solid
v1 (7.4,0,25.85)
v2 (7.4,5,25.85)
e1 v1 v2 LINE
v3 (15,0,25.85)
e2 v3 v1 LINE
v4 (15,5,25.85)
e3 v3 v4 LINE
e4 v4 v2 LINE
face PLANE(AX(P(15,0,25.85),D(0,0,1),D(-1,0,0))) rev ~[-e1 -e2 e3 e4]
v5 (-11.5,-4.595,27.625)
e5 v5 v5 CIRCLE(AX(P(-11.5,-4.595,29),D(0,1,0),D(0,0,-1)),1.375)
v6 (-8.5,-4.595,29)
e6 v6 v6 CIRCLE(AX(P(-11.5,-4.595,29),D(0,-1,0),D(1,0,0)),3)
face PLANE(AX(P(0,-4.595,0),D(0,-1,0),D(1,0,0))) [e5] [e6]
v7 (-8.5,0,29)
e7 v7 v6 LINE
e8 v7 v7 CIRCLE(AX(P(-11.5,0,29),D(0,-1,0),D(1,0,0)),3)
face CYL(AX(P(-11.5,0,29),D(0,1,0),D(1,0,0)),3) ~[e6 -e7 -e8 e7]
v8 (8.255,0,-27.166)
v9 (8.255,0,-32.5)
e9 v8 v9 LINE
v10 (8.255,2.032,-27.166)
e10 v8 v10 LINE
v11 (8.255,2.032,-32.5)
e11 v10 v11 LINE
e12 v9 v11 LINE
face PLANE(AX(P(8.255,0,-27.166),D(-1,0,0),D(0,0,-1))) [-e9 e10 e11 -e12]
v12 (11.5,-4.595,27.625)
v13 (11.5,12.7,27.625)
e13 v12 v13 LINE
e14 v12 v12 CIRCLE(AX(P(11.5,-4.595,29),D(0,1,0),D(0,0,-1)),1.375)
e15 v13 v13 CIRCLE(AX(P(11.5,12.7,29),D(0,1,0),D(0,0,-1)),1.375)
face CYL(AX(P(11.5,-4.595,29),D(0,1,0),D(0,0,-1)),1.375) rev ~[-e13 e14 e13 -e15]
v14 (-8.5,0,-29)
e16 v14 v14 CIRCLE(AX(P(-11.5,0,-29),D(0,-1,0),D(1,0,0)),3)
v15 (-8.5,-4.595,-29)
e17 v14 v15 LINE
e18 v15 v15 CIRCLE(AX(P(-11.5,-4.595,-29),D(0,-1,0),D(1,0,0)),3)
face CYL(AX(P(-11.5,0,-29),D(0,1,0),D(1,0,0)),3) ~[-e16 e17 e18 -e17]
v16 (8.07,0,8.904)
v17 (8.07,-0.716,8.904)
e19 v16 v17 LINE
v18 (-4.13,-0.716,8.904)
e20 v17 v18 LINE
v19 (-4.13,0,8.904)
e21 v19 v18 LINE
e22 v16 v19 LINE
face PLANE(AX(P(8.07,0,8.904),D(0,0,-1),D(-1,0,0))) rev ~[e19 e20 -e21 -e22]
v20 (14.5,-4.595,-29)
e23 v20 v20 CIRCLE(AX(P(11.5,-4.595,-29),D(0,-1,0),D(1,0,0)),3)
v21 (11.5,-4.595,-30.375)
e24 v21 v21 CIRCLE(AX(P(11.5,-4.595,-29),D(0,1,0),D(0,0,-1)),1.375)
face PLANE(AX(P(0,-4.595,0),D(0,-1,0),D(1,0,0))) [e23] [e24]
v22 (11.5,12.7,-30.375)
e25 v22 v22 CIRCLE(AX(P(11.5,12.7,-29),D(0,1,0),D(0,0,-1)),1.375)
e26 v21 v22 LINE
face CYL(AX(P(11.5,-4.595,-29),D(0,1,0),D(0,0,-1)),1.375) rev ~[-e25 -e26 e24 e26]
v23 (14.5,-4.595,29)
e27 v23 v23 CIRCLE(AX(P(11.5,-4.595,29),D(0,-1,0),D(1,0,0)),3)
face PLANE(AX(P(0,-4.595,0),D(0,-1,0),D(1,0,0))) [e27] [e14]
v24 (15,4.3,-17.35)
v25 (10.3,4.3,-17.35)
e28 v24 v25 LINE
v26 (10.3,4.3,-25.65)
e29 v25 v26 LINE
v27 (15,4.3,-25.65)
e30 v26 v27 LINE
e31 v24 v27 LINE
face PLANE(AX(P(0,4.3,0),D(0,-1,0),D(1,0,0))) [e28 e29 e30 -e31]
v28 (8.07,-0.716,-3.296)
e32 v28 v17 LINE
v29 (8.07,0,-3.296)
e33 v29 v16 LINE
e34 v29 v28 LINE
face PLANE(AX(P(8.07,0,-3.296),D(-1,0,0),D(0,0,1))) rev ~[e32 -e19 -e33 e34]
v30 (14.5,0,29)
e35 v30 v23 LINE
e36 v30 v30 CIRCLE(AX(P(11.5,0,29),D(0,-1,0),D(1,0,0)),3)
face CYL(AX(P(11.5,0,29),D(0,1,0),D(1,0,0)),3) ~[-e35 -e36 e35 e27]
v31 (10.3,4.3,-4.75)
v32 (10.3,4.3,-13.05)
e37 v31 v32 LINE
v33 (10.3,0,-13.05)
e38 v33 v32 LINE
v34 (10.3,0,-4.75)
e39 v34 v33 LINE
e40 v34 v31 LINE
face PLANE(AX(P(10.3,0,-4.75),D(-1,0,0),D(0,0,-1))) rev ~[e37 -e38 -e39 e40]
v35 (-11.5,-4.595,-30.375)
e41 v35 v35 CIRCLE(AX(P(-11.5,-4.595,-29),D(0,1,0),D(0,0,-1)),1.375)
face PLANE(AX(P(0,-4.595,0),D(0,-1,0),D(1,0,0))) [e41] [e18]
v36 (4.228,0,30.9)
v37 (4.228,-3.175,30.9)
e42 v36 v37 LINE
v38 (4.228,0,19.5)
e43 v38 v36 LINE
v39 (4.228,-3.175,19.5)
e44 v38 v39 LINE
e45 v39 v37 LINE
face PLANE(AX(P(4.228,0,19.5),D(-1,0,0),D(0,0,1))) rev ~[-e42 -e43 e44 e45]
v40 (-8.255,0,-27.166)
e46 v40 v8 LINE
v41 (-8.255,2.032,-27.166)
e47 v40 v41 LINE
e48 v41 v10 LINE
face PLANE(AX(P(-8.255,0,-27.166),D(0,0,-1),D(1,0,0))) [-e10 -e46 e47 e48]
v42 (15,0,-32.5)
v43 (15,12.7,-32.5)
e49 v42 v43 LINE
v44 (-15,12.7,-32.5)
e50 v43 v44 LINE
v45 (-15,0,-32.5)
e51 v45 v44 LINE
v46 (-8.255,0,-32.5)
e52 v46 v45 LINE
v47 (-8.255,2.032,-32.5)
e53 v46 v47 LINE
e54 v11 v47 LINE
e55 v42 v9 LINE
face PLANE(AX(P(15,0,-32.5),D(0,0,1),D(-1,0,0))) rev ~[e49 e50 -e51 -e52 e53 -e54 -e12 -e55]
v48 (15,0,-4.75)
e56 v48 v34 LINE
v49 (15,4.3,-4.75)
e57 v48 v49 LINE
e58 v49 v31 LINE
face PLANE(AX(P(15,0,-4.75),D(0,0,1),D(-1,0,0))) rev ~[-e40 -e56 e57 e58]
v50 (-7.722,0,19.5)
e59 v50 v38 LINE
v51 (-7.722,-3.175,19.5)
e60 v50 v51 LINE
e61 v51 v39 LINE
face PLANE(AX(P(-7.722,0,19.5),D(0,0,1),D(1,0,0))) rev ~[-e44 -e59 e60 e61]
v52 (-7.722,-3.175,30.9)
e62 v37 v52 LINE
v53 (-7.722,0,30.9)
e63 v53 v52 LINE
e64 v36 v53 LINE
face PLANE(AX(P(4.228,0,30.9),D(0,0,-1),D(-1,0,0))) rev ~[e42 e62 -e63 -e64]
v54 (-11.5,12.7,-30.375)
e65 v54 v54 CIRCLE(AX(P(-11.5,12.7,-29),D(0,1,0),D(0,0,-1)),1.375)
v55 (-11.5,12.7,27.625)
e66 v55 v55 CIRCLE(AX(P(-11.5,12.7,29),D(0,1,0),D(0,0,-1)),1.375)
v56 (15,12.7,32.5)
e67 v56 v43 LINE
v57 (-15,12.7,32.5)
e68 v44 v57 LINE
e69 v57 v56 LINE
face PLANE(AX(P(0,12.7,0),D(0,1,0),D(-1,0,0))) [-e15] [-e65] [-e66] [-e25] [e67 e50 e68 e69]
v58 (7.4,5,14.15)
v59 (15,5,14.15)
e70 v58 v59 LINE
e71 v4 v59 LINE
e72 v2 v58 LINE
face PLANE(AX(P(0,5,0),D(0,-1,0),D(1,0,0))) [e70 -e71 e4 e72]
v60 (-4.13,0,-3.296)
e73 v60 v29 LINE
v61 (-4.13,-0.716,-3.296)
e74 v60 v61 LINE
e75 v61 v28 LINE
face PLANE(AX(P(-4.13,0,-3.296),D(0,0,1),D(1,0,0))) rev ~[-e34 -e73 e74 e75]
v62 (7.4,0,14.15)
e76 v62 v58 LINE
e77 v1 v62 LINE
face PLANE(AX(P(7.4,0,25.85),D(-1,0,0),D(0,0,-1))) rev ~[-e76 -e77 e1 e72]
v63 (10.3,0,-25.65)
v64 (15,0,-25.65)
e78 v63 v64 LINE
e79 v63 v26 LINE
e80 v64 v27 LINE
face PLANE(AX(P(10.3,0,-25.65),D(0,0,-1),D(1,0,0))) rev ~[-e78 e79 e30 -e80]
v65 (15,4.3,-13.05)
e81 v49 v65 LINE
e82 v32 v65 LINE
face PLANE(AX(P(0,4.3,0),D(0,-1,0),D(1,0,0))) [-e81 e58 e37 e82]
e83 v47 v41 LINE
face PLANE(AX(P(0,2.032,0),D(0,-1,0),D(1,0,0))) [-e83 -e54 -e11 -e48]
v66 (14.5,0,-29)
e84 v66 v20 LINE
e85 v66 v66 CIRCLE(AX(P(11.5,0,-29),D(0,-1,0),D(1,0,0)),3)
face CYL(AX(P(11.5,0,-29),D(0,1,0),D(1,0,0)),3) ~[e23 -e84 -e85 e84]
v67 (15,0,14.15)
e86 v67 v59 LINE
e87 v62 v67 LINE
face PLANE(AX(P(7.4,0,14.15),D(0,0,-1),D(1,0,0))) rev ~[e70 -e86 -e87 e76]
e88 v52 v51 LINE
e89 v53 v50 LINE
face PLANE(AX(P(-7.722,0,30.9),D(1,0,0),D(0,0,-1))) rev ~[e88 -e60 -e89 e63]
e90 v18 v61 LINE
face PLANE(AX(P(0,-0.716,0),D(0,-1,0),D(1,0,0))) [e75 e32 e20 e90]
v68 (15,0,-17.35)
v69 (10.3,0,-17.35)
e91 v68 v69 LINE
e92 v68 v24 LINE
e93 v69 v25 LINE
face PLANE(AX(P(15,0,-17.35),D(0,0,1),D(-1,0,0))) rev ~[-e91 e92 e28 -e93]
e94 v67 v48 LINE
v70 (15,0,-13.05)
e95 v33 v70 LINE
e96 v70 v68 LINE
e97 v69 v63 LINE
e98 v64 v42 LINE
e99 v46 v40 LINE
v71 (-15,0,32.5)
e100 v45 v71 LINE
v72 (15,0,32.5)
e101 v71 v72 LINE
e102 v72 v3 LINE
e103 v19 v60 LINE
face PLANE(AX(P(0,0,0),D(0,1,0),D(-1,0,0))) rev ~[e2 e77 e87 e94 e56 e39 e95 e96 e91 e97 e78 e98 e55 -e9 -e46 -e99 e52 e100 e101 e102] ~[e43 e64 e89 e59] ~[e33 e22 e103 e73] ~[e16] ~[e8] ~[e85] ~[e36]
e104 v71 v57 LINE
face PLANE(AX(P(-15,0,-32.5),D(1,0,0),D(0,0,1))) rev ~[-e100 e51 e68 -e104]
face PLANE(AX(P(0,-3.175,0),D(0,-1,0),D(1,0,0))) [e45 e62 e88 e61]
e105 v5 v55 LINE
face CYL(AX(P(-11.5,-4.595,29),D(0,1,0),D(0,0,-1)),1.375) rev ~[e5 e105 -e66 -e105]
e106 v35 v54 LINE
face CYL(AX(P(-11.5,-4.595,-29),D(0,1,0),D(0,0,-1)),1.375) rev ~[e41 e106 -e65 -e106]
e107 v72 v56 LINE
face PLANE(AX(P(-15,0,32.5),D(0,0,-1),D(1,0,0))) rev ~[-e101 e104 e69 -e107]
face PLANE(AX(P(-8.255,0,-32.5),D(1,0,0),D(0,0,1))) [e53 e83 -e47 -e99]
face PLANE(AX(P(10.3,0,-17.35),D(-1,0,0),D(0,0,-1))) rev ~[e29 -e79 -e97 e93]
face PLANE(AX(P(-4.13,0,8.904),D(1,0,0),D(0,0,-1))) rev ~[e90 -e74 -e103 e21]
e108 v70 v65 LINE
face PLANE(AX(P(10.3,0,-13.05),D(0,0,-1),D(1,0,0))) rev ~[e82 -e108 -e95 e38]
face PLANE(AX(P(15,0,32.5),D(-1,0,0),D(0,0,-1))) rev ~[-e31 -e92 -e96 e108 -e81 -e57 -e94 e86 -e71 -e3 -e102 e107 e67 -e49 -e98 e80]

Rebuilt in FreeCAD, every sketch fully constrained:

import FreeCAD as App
import Part
import Sketcher
from FreeCAD import Vector
Q = App.Units.Quantity

doc = App.newDocument("Part")
body = doc.addObject("PartDesign::Body", "Body")

sketch1 = body.newObject("Sketcher::SketchObject", "Sketch")
sketch1.AttachmentSupport = (doc.getObject("XZ_Plane"), [""])
sketch1.MapMode = "FlatFace"
sketch1.addGeometry([
    Part.LineSegment(Vector(-15, -32, 0), Vector(-15, 32, 0)),
    Part.LineSegment(Vector(-15, 32, 0), Vector(15, 32, 0)),
    Part.LineSegment(Vector(15, 32, 0), Vector(15, -32, 0)),
    Part.LineSegment(Vector(15, -32, 0), Vector(-15, -32, 0)),
], False)
sketch1.addConstraint([
    Sketcher.Constraint("Coincident", 0, 2, 1, 1),
    Sketcher.Constraint("Coincident", 1, 2, 2, 1),
    Sketcher.Constraint("Coincident", 2, 2, 3, 1),
    Sketcher.Constraint("Coincident", 3, 2, 0, 1),
    Sketcher.Constraint("Vertical", 0),
    Sketcher.Constraint("Horizontal", 1),
    Sketcher.Constraint("Vertical", 2),
    Sketcher.Constraint("Horizontal", 3),
    Sketcher.Constraint("Symmetric", 0, 2, 2, 2, -1, 1),
    Sketcher.Constraint("DistanceX", 1, 1, 1, 2, Q("30 mm")),
    Sketcher.Constraint("DistanceY", 0, 1, 0, 2, Q("65 mm")),
])
pad1 = body.newObject("PartDesign::Pad", "Pad")
pad1.Profile = sketch1
pad1.Length = 12.7
pad1.Reversed = True

sketch2 = body.newObject("Sketcher::SketchObject", "Sketch001")
sketch2.AttachmentSupport = (doc.getObject("XZ_Plane"), [""])
sketch2.MapMode = "FlatFace"
sketch2.addGeometry([
    Part.LineSegment(Vector(8, -3, 0), Vector(8, 9, 0)),
    Part.LineSegment(Vector(8, 9, 0), Vector(-4, 9, 0)),
    Part.LineSegment(Vector(-4, 9, 0), Vector(-4, -3, 0)),
    Part.LineSegment(Vector(-4, -3, 0), Vector(8, -3, 0)),
], False)
sketch2.addConstraint([
    Sketcher.Constraint("Coincident", 0, 2, 1, 1),
    Sketcher.Constraint("Coincident", 1, 2, 2, 1),
    Sketcher.Constraint("Coincident", 2, 2, 3, 1),
    Sketcher.Constraint("Coincident", 3, 2, 0, 1),
    Sketcher.Constraint("Vertical", 0),
    Sketcher.Constraint("Horizontal", 1),
    Sketcher.Constraint("Vertical", 2),
    Sketcher.Constraint("Horizontal", 3),
    Sketcher.Constraint("Equal", 3, 0),
    Sketcher.Constraint("DistanceX", 1, 2, 1, 1, Q("12.2 mm")),
    Sketcher.Constraint("DistanceX", -1, 1, 0, 2, Q("8.07 mm")),
    Sketcher.Constraint("DistanceY", -1, 1, 0, 2, Q("8.904 mm")),
])
pad2 = body.newObject("PartDesign::Pad", "Pad001")
pad2.Profile = sketch2
pad2.Length = 0.716

sketch3 = body.newObject("Sketcher::SketchObject", "Sketch002")
sketch3.AttachmentSupport = (doc.getObject("XZ_Plane"), [""])
sketch3.MapMode = "FlatFace"
sketch3.addGeometry([
    Part.LineSegment(Vector(15, 14, 0), Vector(15, 26, 0)),
    Part.LineSegment(Vector(15, 26, 0), Vector(7, 26, 0)),
    Part.LineSegment(Vector(7, 26, 0), Vector(7, 14, 0)),
    Part.LineSegment(Vector(7, 14, 0), Vector(15, 14, 0)),
], False)
sketch3.addConstraint([
    Sketcher.Constraint("Coincident", 0, 2, 1, 1),
    Sketcher.Constraint("Coincident", 1, 2, 2, 1),
    Sketcher.Constraint("Coincident", 2, 2, 3, 1),
    Sketcher.Constraint("Coincident", 3, 2, 0, 1),
    Sketcher.Constraint("Vertical", 0),
    Sketcher.Constraint("Horizontal", 1),
    Sketcher.Constraint("Vertical", 2),
    Sketcher.Constraint("Horizontal", 3),
    Sketcher.Constraint("DistanceX", 1, 2, 1, 1, Q("7.6 mm")),
    Sketcher.Constraint("DistanceY", 0, 1, 0, 2, Q("11.7 mm")),
    Sketcher.Constraint("DistanceX", -1, 1, 0, 2, Q("15 mm")),
    Sketcher.Constraint("DistanceY", -1, 1, 0, 2, Q("25.85 mm")),
])
pocket1 = body.newObject("PartDesign::Pocket", "Pocket")
pocket1.Profile = sketch3
pocket1.Length = 5

sketch4 = body.newObject("Sketcher::SketchObject", "Sketch003")
sketch4.AttachmentSupport = (doc.getObject("XZ_Plane"), [""])
sketch4.MapMode = "FlatFace"
sketch4.addGeometry([
    Part.LineSegment(Vector(15, -13.1, 0), Vector(15, -4.8, 0)),
    Part.LineSegment(Vector(15, -4.8, 0), Vector(10.3, -4.8, 0)),
    Part.LineSegment(Vector(10.3, -4.8, 0), Vector(10.3, -13.1, 0)),
    Part.LineSegment(Vector(10.3, -13.1, 0), Vector(15, -13.1, 0)),
], False)
sketch4.addConstraint([
    Sketcher.Constraint("Coincident", 0, 2, 1, 1),
    Sketcher.Constraint("Coincident", 1, 2, 2, 1),
    Sketcher.Constraint("Coincident", 2, 2, 3, 1),
    Sketcher.Constraint("Coincident", 3, 2, 0, 1),
    Sketcher.Constraint("Vertical", 0),
    Sketcher.Constraint("Horizontal", 1),
    Sketcher.Constraint("Vertical", 2),
    Sketcher.Constraint("Horizontal", 3),
    Sketcher.Constraint("DistanceX", 1, 2, 1, 1, Q("4.7 mm")),
    Sketcher.Constraint("DistanceY", 0, 1, 0, 2, Q("8.3 mm")),
    Sketcher.Constraint("DistanceX", -1, 1, 0, 2, Q("15 mm")),
    Sketcher.Constraint("DistanceY", 0, 2, -1, 1, Q("4.75 mm")),
])
pocket2 = body.newObject("PartDesign::Pocket", "Pocket001")
pocket2.Profile = sketch4
pocket2.Length = 4.3

sketch5 = body.newObject("Sketcher::SketchObject", "Sketch004")
sketch5.AttachmentSupport = (doc.getObject("XZ_Plane"), [""])
sketch5.MapMode = "FlatFace"
sketch5.addGeometry([
    Part.LineSegment(Vector(15, -25.6, 0), Vector(15, -17.4, 0)),
    Part.LineSegment(Vector(15, -17.4, 0), Vector(10.3, -17.4, 0)),
    Part.LineSegment(Vector(10.3, -17.4, 0), Vector(10.3, -25.6, 0)),
    Part.LineSegment(Vector(10.3, -25.6, 0), Vector(15, -25.6, 0)),
], False)
sketch5.addConstraint([
    Sketcher.Constraint("Coincident", 0, 2, 1, 1),
    Sketcher.Constraint("Coincident", 1, 2, 2, 1),
    Sketcher.Constraint("Coincident", 2, 2, 3, 1),
    Sketcher.Constraint("Coincident", 3, 2, 0, 1),
    Sketcher.Constraint("Vertical", 0),
    Sketcher.Constraint("Horizontal", 1),
    Sketcher.Constraint("Vertical", 2),
    Sketcher.Constraint("Horizontal", 3),
    Sketcher.Constraint("DistanceX", 1, 2, 1, 1, Q("4.7 mm")),
    Sketcher.Constraint("DistanceY", 0, 1, 0, 2, Q("8.3 mm")),
    Sketcher.Constraint("DistanceX", -1, 1, 0, 2, Q("15 mm")),
    Sketcher.Constraint("DistanceY", 0, 2, -1, 1, Q("17.35 mm")),
])
pocket3 = body.newObject("PartDesign::Pocket", "Pocket002")
pocket3.Profile = sketch5
pocket3.Length = 4.3

sketch6 = body.newObject("Sketcher::SketchObject", "Sketch005")
sketch6.AttachmentSupport = (doc.getObject("XZ_Plane"), [""])
sketch6.MapMode = "FlatFace"
sketch6.addGeometry([
    Part.Circle(Vector(11.5, 29, 0), Vector(0, 0, 1), 3),
    Part.Circle(Vector(-11.5, 29, 0), Vector(0, 0, 1), 3),
    Part.Circle(Vector(-11.5, -29, 0), Vector(0, 0, 1), 3),
    Part.Circle(Vector(11.5, -29, 0), Vector(0, 0, 1), 3),
], False)
sketch6.addConstraint([
    Sketcher.Constraint("Equal", 0, 1),
    Sketcher.Constraint("Equal", 1, 2),
    Sketcher.Constraint("Equal", 2, 3),
    Sketcher.Constraint("Symmetric", 0, 3, 2, 3, -1, 1),
    Sketcher.Constraint("Symmetric", 1, 3, 3, 3, -1, 1),
    Sketcher.Constraint("Symmetric", 0, 3, 1, 3, -2),
    Sketcher.Constraint("Diameter", 0, Q("6 mm")),
    Sketcher.Constraint("DistanceX", 1, 3, 0, 3, Q("23 mm")),
    Sketcher.Constraint("DistanceY", 2, 3, 1, 3, Q("58 mm")),
])
pad3 = body.newObject("PartDesign::Pad", "Pad002")
pad3.Profile = sketch6
pad3.Length = 4.595

sketch7 = body.newObject("Sketcher::SketchObject", "Sketch006")
sketch7.AttachmentSupport = (doc.getObject("XZ_Plane"), [""])
sketch7.MapMode = "FlatFace"
sketch7.AttachmentOffset = App.Placement(Vector(0, 0, 4.595), App.Rotation())
sketch7.addGeometry([
    Part.Circle(Vector(11.5, 29, 0), Vector(0, 0, 1), 1.4),
    Part.Circle(Vector(-11.5, 29, 0), Vector(0, 0, 1), 1.4),
    Part.Circle(Vector(-11.5, -29, 0), Vector(0, 0, 1), 1.4),
    Part.Circle(Vector(11.5, -29, 0), Vector(0, 0, 1), 1.4),
], False)
sketch7.addConstraint([
    Sketcher.Constraint("Equal", 0, 1),
    Sketcher.Constraint("Equal", 1, 2),
    Sketcher.Constraint("Equal", 2, 3),
    Sketcher.Constraint("Symmetric", 0, 3, 2, 3, -1, 1),
    Sketcher.Constraint("Symmetric", 1, 3, 3, 3, -1, 1),
    Sketcher.Constraint("Symmetric", 0, 3, 1, 3, -2),
    Sketcher.Constraint("Diameter", 0, Q("2.75 mm")),
    Sketcher.Constraint("DistanceY", -1, 1, 0, 3, Q("29 mm")),
    Sketcher.Constraint("DistanceX", 1, 3, 0, 3, Q("23 mm")),
])
doc.recompute()
hole = body.newObject("PartDesign::Hole", "Hole")
hole.Profile = sketch7
hole.ThreadType = "None"
hole.Diameter = 2.75
hole.DepthType = "Dimension"
hole.Depth = 25.4
hole.DrillPoint = "Angled"
hole.DrillPointAngle = 118

sketch8 = body.newObject("Sketcher::SketchObject", "Sketch007")
sketch8.AttachmentSupport = (doc.getObject("XZ_Plane"), [""])
sketch8.MapMode = "FlatFace"
sketch8.addGeometry([
    Part.LineSegment(Vector(-8, -32, 0), Vector(8, -32, 0)),
    Part.LineSegment(Vector(8, -32, 0), Vector(8, -27, 0)),
    Part.LineSegment(Vector(8, -27, 0), Vector(-8, -27, 0)),
    Part.LineSegment(Vector(-8, -27, 0), Vector(-8, -32, 0)),
], False)
sketch8.addConstraint([
    Sketcher.Constraint("Coincident", 0, 2, 1, 1),
    Sketcher.Constraint("Coincident", 1, 2, 2, 1),
    Sketcher.Constraint("Coincident", 2, 2, 3, 1),
    Sketcher.Constraint("Coincident", 3, 2, 0, 1),
    Sketcher.Constraint("Horizontal", 0),
    Sketcher.Constraint("Vertical", 1),
    Sketcher.Constraint("Horizontal", 2),
    Sketcher.Constraint("Vertical", 3),
    Sketcher.Constraint("DistanceX", 0, 1, 0, 2, Q("16.51 mm")),
    Sketcher.Constraint("DistanceY", 1, 1, 1, 2, Q("5.334 mm")),
    Sketcher.Constraint("DistanceX", -1, 1, 0, 2, Q("8.255 mm")),
    Sketcher.Constraint("DistanceY", 0, 2, -1, 1, Q("32.5 mm")),
])
pocket4 = body.newObject("PartDesign::Pocket", "Pocket003")
pocket4.Profile = sketch8
pocket4.Length = 2.032

sketch9 = body.newObject("Sketcher::SketchObject", "Sketch008")
sketch9.AttachmentSupport = (doc.getObject("XZ_Plane"), [""])
sketch9.MapMode = "FlatFace"
sketch9.addGeometry([
    Part.LineSegment(Vector(4, 20, 0), Vector(4, 31, 0)),
    Part.LineSegment(Vector(4, 31, 0), Vector(-8, 31, 0)),
    Part.LineSegment(Vector(-8, 31, 0), Vector(-8, 20, 0)),
    Part.LineSegment(Vector(-8, 20, 0), Vector(4, 20, 0)),
], False)
sketch9.addConstraint([
    Sketcher.Constraint("Coincident", 0, 2, 1, 1),
    Sketcher.Constraint("Coincident", 1, 2, 2, 1),
    Sketcher.Constraint("Coincident", 2, 2, 3, 1),
    Sketcher.Constraint("Coincident", 3, 2, 0, 1),
    Sketcher.Constraint("Vertical", 0),
    Sketcher.Constraint("Horizontal", 1),
    Sketcher.Constraint("Vertical", 2),
    Sketcher.Constraint("Horizontal", 3),
    Sketcher.Constraint("DistanceY", 0, 1, 0, 2, Q("11.4 mm")),
    Sketcher.Constraint("DistanceX", 1, 2, 1, 1, Q("11.95 mm")),
    Sketcher.Constraint("DistanceY", -1, 1, 0, 2, Q("30.9 mm")),
    Sketcher.Constraint("DistanceX", -1, 1, 0, 2, Q("4.228 mm")),
])
pad4 = body.newObject("PartDesign::Pad", "Pad003")
pad4.Profile = sketch9
pad4.Length = 3.175

doc.recompute()
